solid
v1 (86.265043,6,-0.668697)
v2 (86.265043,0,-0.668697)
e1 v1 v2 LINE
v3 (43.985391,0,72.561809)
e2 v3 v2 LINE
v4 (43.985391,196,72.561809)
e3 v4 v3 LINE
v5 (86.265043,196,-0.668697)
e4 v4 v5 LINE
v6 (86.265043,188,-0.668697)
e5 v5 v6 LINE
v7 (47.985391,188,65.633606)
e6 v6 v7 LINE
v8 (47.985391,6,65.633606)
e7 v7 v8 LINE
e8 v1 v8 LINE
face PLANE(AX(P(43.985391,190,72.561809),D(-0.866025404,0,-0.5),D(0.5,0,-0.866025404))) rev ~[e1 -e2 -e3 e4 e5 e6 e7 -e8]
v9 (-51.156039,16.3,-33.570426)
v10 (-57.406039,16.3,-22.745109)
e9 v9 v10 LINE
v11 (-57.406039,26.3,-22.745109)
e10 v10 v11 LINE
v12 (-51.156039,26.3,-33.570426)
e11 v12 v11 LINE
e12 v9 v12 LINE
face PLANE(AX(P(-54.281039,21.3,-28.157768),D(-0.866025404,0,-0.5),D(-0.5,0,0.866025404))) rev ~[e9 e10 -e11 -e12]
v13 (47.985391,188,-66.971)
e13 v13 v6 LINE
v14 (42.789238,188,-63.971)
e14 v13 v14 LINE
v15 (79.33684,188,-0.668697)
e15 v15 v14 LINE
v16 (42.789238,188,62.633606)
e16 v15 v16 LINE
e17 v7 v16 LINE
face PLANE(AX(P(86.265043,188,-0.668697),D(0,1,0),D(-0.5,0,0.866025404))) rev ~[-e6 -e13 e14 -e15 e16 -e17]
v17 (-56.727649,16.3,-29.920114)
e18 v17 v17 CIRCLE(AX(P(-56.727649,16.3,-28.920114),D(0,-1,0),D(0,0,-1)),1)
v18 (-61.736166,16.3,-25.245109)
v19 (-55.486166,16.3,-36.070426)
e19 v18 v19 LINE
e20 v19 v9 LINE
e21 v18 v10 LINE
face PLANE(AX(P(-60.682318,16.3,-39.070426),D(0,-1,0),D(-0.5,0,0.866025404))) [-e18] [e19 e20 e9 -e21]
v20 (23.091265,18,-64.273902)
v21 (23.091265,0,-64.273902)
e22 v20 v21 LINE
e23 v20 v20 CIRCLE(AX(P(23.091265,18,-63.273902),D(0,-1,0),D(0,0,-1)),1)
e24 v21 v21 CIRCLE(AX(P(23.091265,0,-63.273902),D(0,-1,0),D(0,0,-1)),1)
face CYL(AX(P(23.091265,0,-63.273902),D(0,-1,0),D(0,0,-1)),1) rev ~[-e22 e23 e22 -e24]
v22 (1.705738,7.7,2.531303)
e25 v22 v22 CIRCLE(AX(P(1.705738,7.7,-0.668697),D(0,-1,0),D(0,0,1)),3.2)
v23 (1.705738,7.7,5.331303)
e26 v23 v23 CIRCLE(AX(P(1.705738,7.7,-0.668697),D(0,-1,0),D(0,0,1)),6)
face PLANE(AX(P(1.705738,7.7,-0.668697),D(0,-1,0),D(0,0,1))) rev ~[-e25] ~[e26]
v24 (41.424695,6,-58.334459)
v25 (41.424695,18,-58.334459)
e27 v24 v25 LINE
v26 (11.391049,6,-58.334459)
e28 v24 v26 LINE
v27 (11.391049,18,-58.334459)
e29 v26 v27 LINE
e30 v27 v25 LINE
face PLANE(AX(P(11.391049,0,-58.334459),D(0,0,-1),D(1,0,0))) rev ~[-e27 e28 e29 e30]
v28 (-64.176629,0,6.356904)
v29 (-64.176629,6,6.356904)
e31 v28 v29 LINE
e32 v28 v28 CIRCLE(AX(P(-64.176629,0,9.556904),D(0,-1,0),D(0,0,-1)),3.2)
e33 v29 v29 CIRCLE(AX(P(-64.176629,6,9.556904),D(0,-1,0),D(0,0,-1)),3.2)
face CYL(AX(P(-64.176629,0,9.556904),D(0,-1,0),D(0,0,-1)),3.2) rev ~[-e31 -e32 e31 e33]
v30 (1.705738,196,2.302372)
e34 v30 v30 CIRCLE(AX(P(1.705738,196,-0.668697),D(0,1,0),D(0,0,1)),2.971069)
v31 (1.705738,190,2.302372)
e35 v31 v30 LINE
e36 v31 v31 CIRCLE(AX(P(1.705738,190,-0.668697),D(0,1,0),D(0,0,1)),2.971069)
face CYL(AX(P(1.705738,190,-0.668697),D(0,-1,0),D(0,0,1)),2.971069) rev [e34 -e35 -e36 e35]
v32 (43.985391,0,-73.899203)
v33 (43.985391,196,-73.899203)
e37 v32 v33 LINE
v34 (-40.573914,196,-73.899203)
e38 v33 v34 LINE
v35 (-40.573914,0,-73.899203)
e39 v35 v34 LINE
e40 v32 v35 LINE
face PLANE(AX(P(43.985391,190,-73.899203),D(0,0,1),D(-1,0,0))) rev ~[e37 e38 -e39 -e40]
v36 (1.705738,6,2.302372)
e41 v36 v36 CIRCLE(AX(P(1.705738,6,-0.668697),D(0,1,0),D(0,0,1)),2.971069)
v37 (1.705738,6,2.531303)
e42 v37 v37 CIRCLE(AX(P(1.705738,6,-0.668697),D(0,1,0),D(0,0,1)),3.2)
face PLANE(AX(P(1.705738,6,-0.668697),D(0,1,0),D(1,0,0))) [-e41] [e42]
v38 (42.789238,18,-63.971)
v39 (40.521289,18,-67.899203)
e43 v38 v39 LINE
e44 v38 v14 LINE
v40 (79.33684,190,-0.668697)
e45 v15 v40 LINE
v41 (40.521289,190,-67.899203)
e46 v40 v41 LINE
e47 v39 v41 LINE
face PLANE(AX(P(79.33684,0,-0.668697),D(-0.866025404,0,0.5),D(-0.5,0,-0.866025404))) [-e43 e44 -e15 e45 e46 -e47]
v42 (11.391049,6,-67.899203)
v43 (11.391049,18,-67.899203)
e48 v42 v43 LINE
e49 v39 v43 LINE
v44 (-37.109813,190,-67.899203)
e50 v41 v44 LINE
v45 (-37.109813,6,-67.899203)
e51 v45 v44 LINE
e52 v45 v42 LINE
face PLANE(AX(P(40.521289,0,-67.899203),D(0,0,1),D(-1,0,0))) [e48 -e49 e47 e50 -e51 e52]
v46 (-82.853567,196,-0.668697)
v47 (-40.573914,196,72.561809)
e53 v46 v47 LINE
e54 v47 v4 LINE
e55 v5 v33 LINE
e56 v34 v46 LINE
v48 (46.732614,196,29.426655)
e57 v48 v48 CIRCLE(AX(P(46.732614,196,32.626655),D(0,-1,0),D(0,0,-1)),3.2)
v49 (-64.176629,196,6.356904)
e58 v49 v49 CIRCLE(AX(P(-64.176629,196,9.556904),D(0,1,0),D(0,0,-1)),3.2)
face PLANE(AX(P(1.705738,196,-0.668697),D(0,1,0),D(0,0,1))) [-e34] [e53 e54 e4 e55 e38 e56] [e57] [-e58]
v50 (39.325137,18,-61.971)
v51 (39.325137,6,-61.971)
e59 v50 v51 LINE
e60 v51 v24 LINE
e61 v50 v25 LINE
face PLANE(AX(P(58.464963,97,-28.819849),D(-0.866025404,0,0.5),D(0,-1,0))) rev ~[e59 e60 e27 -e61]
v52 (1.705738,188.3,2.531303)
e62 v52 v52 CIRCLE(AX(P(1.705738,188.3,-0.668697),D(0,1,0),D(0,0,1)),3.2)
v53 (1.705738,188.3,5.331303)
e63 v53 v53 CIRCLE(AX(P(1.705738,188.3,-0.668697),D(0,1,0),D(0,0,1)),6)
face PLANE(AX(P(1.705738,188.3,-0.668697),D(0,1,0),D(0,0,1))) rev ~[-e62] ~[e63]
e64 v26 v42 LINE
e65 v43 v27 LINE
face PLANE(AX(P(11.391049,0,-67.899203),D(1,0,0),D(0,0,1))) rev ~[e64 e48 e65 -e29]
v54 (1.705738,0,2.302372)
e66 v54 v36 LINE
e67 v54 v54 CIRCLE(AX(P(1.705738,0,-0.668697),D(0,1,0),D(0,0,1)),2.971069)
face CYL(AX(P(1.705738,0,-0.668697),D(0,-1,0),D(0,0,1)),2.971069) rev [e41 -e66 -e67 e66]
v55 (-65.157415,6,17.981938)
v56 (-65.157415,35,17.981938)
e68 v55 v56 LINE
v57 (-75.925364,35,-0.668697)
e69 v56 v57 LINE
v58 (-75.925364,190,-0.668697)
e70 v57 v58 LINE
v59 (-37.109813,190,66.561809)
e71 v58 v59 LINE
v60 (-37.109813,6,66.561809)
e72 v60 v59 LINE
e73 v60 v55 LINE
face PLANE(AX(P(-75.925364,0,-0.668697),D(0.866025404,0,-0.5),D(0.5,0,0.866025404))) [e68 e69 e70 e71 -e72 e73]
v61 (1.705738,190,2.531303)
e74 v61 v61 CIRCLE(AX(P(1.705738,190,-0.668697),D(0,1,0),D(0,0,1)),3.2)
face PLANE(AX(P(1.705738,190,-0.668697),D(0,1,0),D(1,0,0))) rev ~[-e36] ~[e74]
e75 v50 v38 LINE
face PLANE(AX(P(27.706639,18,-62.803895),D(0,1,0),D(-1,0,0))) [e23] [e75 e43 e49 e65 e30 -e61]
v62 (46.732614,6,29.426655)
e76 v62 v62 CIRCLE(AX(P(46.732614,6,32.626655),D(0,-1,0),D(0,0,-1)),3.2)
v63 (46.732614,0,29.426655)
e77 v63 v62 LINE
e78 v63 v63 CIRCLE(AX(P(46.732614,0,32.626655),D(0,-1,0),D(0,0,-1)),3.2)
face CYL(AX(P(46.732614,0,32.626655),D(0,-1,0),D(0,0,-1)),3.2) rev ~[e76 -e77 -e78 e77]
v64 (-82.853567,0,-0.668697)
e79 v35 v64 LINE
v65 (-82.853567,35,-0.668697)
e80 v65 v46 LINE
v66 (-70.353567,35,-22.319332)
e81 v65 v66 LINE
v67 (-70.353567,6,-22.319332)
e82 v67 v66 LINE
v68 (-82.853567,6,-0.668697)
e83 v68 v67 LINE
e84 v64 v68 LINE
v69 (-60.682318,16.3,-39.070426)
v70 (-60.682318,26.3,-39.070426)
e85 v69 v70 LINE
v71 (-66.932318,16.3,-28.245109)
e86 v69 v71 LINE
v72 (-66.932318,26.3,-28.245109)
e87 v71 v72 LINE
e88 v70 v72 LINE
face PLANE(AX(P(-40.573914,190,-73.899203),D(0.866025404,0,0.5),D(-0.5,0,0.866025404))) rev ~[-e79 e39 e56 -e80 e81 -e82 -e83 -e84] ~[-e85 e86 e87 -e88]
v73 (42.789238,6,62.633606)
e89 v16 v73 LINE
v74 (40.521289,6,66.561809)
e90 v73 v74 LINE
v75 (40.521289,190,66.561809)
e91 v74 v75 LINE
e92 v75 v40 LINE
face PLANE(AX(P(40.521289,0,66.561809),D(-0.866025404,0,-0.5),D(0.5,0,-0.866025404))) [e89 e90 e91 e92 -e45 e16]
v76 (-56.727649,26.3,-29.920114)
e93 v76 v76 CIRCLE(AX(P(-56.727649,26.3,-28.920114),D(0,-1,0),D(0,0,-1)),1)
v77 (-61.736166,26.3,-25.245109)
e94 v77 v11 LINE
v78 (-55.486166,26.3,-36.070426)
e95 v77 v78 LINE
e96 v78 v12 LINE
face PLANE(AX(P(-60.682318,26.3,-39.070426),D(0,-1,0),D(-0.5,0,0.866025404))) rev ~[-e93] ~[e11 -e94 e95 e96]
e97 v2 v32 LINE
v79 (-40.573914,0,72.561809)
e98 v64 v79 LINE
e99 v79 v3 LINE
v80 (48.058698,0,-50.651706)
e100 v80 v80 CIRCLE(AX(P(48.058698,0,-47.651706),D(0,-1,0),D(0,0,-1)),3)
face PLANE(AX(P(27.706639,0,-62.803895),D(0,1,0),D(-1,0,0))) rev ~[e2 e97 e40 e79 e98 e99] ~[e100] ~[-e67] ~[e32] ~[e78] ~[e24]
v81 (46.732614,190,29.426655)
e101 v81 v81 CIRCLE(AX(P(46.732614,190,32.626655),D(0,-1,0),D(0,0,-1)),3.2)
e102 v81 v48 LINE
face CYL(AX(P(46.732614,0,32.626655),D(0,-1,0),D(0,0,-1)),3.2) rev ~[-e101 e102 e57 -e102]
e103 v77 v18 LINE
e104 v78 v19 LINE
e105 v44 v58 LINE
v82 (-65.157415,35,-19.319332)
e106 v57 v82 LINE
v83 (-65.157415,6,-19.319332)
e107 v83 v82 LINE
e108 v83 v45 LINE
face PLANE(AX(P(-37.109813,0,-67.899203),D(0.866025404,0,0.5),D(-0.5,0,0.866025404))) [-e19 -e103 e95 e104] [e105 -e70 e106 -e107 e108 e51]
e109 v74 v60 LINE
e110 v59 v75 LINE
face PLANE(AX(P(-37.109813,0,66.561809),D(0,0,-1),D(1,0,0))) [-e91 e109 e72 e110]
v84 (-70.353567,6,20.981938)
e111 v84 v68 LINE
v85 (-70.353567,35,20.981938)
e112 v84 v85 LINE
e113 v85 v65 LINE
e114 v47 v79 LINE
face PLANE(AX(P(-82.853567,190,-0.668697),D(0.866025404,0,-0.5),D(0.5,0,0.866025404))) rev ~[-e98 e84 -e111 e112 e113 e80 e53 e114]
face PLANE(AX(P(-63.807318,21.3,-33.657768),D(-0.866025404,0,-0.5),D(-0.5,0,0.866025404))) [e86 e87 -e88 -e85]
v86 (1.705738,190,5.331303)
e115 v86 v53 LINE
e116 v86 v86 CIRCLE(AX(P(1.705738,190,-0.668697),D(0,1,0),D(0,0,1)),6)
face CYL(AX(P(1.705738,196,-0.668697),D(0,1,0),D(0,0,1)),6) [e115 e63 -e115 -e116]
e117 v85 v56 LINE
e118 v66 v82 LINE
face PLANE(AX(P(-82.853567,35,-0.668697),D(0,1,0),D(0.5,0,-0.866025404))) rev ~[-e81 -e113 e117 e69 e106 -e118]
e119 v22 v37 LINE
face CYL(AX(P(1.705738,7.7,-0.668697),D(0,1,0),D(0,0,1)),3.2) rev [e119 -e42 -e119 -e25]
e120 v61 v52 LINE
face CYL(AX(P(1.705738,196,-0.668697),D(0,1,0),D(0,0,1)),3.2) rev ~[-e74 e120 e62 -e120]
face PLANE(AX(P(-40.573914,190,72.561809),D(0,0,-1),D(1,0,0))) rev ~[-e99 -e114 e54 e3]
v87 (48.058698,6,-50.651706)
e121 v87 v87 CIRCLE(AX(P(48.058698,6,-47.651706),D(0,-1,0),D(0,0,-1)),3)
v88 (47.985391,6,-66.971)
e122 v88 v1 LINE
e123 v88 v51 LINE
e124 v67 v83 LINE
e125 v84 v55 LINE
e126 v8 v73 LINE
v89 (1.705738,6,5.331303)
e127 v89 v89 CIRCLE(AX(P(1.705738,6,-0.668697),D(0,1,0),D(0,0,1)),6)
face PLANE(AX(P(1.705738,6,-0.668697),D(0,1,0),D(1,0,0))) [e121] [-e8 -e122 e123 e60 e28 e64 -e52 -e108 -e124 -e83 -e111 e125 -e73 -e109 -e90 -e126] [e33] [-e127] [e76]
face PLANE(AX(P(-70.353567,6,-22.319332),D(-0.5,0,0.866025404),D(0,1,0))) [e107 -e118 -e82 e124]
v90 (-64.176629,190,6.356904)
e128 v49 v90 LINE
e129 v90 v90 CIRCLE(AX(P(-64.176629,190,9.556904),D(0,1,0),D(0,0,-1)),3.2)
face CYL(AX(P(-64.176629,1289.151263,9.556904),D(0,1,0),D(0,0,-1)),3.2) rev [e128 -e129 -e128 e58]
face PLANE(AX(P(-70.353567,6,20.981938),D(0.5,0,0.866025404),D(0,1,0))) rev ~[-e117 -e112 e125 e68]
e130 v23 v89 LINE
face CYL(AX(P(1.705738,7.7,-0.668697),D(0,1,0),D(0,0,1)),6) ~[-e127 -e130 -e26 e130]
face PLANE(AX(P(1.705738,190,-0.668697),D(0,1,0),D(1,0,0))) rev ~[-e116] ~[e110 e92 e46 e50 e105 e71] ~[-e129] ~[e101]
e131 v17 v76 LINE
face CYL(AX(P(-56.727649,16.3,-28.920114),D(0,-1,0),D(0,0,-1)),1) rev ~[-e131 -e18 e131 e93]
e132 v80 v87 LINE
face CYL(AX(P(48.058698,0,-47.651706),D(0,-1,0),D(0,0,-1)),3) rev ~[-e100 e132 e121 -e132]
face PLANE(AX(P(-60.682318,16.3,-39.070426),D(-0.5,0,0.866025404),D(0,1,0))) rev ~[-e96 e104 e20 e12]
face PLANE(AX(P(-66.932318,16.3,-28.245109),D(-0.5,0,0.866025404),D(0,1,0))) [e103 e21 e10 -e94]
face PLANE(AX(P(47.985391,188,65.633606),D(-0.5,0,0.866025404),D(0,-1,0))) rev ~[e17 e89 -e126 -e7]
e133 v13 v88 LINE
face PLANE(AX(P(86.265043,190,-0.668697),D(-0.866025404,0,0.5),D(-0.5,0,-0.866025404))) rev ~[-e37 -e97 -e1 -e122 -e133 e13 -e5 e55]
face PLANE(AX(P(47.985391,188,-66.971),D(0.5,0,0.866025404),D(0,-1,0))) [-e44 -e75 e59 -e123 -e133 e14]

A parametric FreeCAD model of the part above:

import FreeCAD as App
import Part
import Sketcher

V = App.Vector
Q = App.Units.Quantity

doc = App.newDocument("Part")
body = doc.addObject("PartDesign::Body", "Body")

sketch1 = body.newObject("Sketcher::SketchObject", "Sketch")
sketch1.AttachmentSupport = (doc.getObject("XZ_Plane"), [""])
sketch1.MapMode = "FlatFace"
sketch1.addGeometry([
    Part.LineSegment(V(-40.6, -73.9, 0), V(-82.9, -0.7, 0)),
    Part.LineSegment(V(-82.9, -0.7, 0), V(-40.6, 72.6, 0)),
    Part.LineSegment(V(-40.6, 72.6, 0), V(44, 72.6, 0)),
    Part.LineSegment(V(44, 72.6, 0), V(86.3, -0.7, 0)),
    Part.LineSegment(V(86.3, -0.7, 0), V(44, -73.9, 0)),
    Part.LineSegment(V(44, -73.9, 0), V(-40.6, -73.9, 0)),
    Part.Circle(V(1.7, -0.7, 0), V(0, 0, 1), 3),
], False)
sketch1.addConstraint([
    Sketcher.Constraint("Coincident", 0, 2, 1, 1),
    Sketcher.Constraint("Coincident", 1, 2, 2, 1),
    Sketcher.Constraint("Coincident", 2, 2, 3, 1),
    Sketcher.Constraint("Coincident", 3, 2, 4, 1),
    Sketcher.Constraint("Coincident", 4, 2, 5, 1),
    Sketcher.Constraint("Coincident", 5, 2, 0, 1),
    Sketcher.Constraint("Horizontal", 2),
    Sketcher.Constraint("Horizontal", 5),
    Sketcher.Constraint("Parallel", 0, 3),
    Sketcher.Constraint("Parallel", 1, 4),
    Sketcher.Constraint("Horizontal", 6, 3, 0, 2),
    Sketcher.Constraint("Horizontal", 0, 2, 3, 2),
    Sketcher.Constraint("Vertical", 2, 2, 4, 2),
    Sketcher.Constraint("Vertical", 1, 2, 5, 2),
    Sketcher.Constraint("Angle", 0, Q("120 deg")),
    Sketcher.Constraint("Diameter", 6, 5.942137),
    Sketcher.Constraint("DistanceX", 2, 1, 2, 2, 84.559305),
    Sketcher.Constraint("DistanceX", -1, 1, 6, 3, 1.705738),
    Sketcher.Constraint("DistanceY", -1, 1, 1, 2, 72.561809),
    Sketcher.Constraint("DistanceX", -1, 1, 2, 2, 43.985391),
    Sketcher.Constraint("DistanceX", 0, 2, 3, 2, 169.11861),
])
pad1 = body.newObject("PartDesign::Pad", "Pad")
pad1.Profile = sketch1
pad1.Length = 6
pad1.Reversed = True

sketch2 = body.newObject("Sketcher::SketchObject", "Sketch001")
sketch2.AttachmentSupport = (doc.getObject("XZ_Plane"), [""])
sketch2.MapMode = "FlatFace"
sketch2.addGeometry([
    Part.LineSegment(V(86, -1, 0), V(44, -74, 0)),
    Part.LineSegment(V(44, -74, 0), V(-41, -74, 0)),
    Part.LineSegment(V(-41, -74, 0), V(-83, -1, 0)),
    Part.LineSegment(V(-83, -1, 0), V(-41, 73, 0)),
    Part.LineSegment(V(-41, 73, 0), V(44, 73, 0)),
    Part.LineSegment(V(44, 73, 0), V(86, -1, 0)),
    Part.LineSegment(V(-76, -1, 0), V(-37, -68, 0)),
    Part.LineSegment(V(-37, -68, 0), V(41, -68, 0)),
    Part.LineSegment(V(41, -68, 0), V(79, -1, 0)),
    Part.LineSegment(V(79, -1, 0), V(41, 67, 0)),
    Part.LineSegment(V(41, 67, 0), V(-37, 67, 0)),
    Part.LineSegment(V(-37, 67, 0), V(-76, -1, 0)),
], False)
sketch2.addConstraint([
    Sketcher.Constraint("Coincident", 0, 2, 1, 1),
    Sketcher.Constraint("Coincident", 1, 2, 2, 1),
    Sketcher.Constraint("Coincident", 2, 2, 3, 1),
    Sketcher.Constraint("Coincident", 3, 2, 4, 1),
    Sketcher.Constraint("Coincident", 4, 2, 5, 1),
    Sketcher.Constraint("Coincident", 5, 2, 0, 1),
    Sketcher.Constraint("Coincident", 6, 2, 7, 1),
    Sketcher.Constraint("Coincident", 7, 2, 8, 1),
    Sketcher.Constraint("Coincident", 8, 2, 9, 1),
    Sketcher.Constraint("Coincident", 9, 2, 10, 1),
    Sketcher.Constraint("Coincident", 10, 2, 11, 1),
    Sketcher.Constraint("Coincident", 11, 2, 6, 1),
    Sketcher.Constraint("Horizontal", 1),
    Sketcher.Constraint("Horizontal", 4),
    Sketcher.Constraint("Horizontal", 7),
    Sketcher.Constraint("Horizontal", 10),
    Sketcher.Constraint("Parallel", 0, 3),
    Sketcher.Constraint("Parallel", 2, 5),
    Sketcher.Constraint("Parallel", 5, 6),
    Sketcher.Constraint("Parallel", 3, 8),
    Sketcher.Constraint("Parallel", 6, 9),
    Sketcher.Constraint("Parallel", 8, 11),
    Sketcher.Constraint("Horizontal", 2, 2, 5, 2),
    Sketcher.Constraint("Horizontal", 5, 2, 8, 2),
    Sketcher.Constraint("Horizontal", 8, 2, 11, 2),
    Sketcher.Constraint("Vertical", 1, 2, 3, 2),
    Sketcher.Constraint("Vertical", 0, 2, 4, 2),
    Sketcher.Constraint("Vertical", 7, 2, 9, 2),
    Sketcher.Constraint("Angle", 0, Q("-120 deg")),
    Sketcher.Constraint("DistanceY", 1, 2, 6, 2, 6.0),
    Sketcher.Constraint("DistanceX", 7, 1, 7, 2, 77.631102),
    Sketcher.Constraint("Distance", 6, 77.631102),
    Sketcher.Constraint("DistanceX", 1, 2, 6, 2, 3.464102),
    Sketcher.Constraint("DistanceX", 7, 2, 0, 2, 3.464102),
    Sketcher.Constraint("DistanceX", -1, 1, 0, 2, 43.985391),
    Sketcher.Constraint("DistanceY", -1, 1, 3, 2, 72.561809),
])
pad2 = body.newObject("PartDesign::Pad", "Pad001")
pad2.Profile = sketch2
pad2.Length = 190
pad2.Reversed = True

sketch3 = body.newObject("Sketcher::SketchObject", "Sketch002")
sketch3.AttachmentSupport = (doc.getObject("XZ_Plane"), [""])
sketch3.MapMode = "FlatFace"
sketch3.AttachmentOffset = App.Placement(V(0, 0, -190), App.Rotation())
sketch3.addGeometry([
    Part.LineSegment(V(86.3, -0.7, 0), V(44, -73.9, 0)),
    Part.LineSegment(V(44, -73.9, 0), V(-40.6, -73.9, 0)),
    Part.LineSegment(V(-40.6, -73.9, 0), V(-82.9, -0.7, 0)),
    Part.LineSegment(V(-82.9, -0.7, 0), V(-40.6, 72.6, 0)),
    Part.LineSegment(V(-40.6, 72.6, 0), V(44, 72.6, 0)),
    Part.LineSegment(V(44, 72.6, 0), V(86.3, -0.7, 0)),
    Part.Circle(V(1.7, -0.7, 0), V(0, 0, 1), 3),
], False)
sketch3.addConstraint([
    Sketcher.Constraint("Coincident", 0, 2, 1, 1),
    Sketcher.Constraint("Coincident", 1, 2, 2, 1),
    Sketcher.Constraint("Coincident", 2, 2, 3, 1),
    Sketcher.Constraint("Coincident", 3, 2, 4, 1),
    Sketcher.Constraint("Coincident", 4, 2, 5, 1),
    Sketcher.Constraint("Coincident", 5, 2, 0, 1),
    Sketcher.Constraint("Horizontal", 1),
    Sketcher.Constraint("Horizontal", 4),
    Sketcher.Constraint("Parallel", 0, 3),
    Sketcher.Constraint("Parallel", 2, 5),
    Sketcher.Constraint("Horizontal", 6, 3, 2, 2),
    Sketcher.Constraint("Horizontal", 2, 2, 5, 2),
    Sketcher.Constraint("Vertical", 1, 2, 3, 2),
    Sketcher.Constraint("Vertical", 0, 2, 4, 2),
    Sketcher.Constraint("Angle", 0, Q("-120 deg")),
    Sketcher.Constraint("Diameter", 6, 5.942137),
    Sketcher.Constraint("DistanceX", 1, 2, 1, 1, 84.559305),
    Sketcher.Constraint("DistanceX", -1, 1, 6, 3, 1.705738),
    Sketcher.Constraint("DistanceX", -1, 1, 0, 2, 43.985391),
    Sketcher.Constraint("DistanceY", -1, 1, 3, 2, 72.561809),
    Sketcher.Constraint("Distance", 0, 84.559305),
])
pad3 = body.newObject("PartDesign::Pad", "Pad002")
pad3.Profile = sketch3
pad3.Length = 6
pad3.Reversed = True

sketch4 = body.newObject("Sketcher::SketchObject", "Sketch003")
sketch4.Placement = App.Placement(V(-62.42973, 0, -36.043821), App.Rotation(V(-0.5, 0, 0.866025404), V(0, 1, 0), V(-0.866025404, 0, -0.5), "ZXY"))
sketch4.addGeometry([
    Part.LineSegment(V(-3, 26, 0), V(-3, 16, 0)),
    Part.LineSegment(V(-3, 16, 0), V(9, 16, 0)),
    Part.LineSegment(V(9, 16, 0), V(9, 26, 0)),
    Part.LineSegment(V(9, 26, 0), V(-3, 26, 0)),
], False)
sketch4.addConstraint([
    Sketcher.Constraint("Coincident", 0, 2, 1, 1),
    Sketcher.Constraint("Coincident", 1, 2, 2, 1),
    Sketcher.Constraint("Coincident", 2, 2, 3, 1),
    Sketcher.Constraint("Coincident", 3, 2, 0, 1),
    Sketcher.Constraint("Vertical", 0),
    Sketcher.Constraint("Horizontal", 1),
    Sketcher.Constraint("Vertical", 2),
    Sketcher.Constraint("Horizontal", 3),
    Sketcher.Constraint("DistanceY", 0, 2, 0, 1, 10.0),
    Sketcher.Constraint("DistanceX", 1, 1, 1, 2, 12.5),
    Sketcher.Constraint("DistanceY", -1, 1, 0, 2, 16.3),
    Sketcher.Constraint("DistanceX", 0, 2, -1, 1, 3.494823),
])
pad4 = body.newObject("PartDesign::Pad", "Pad003")
pad4.Profile = sketch4
pad4.Length = 11
pad4.Reversed = True

sketch5 = body.newObject("Sketcher::SketchObject", "Sketch004")
sketch5.AttachmentSupport = (doc.getObject("XZ_Plane"), [""])
sketch5.MapMode = "FlatFace"
sketch5.addGeometry([
    Part.LineSegment(V(11.4, -67.9, 0), V(40.5, -67.9, 0)),
    Part.LineSegment(V(40.5, -67.9, 0), V(46, -58.3, 0)),
    Part.LineSegment(V(46, -58.3, 0), V(11.4, -58.3, 0)),
    Part.LineSegment(V(11.4, -58.3, 0), V(11.4, -67.9, 0)),
    Part.Circle(V(23.1, -63.3, 0), V(0, 0, 1), 1),
], False)
sketch5.addConstraint([
    Sketcher.Constraint("Coincident", 0, 2, 1, 1),
    Sketcher.Constraint("Coincident", 1, 2, 2, 1),
    Sketcher.Constraint("Coincident", 2, 2, 3, 1),
    Sketcher.Constraint("Coincident", 3, 2, 0, 1),
    Sketcher.Constraint("Horizontal", 0),
    Sketcher.Constraint("Horizontal", 2),
    Sketcher.Constraint("Vertical", 3),
    Sketcher.Constraint("Diameter", 4, 2.0),
    Sketcher.Constraint("Angle", 1, Q("60 deg")),
    Sketcher.Constraint("DistanceX", 0, 1, 0, 2, 29.13024),
    Sketcher.Constraint("DistanceX", 2, 2, 2, 1, 34.652448),
    Sketcher.Constraint("DistanceY", 4, 3, -1, 1, 63.273902),
    Sketcher.Constraint("DistanceY", 0, 2, 4, 3, 4.625302),
    Sketcher.Constraint("DistanceX", -1, 1, 0, 2, 40.521289),
    Sketcher.Constraint("DistanceX", -1, 1, 4, 3, 23.091265),
])
pad5 = body.newObject("PartDesign::Pad", "Pad004")
pad5.Profile = sketch5
pad5.Length = 18
pad5.Reversed = True

sketch6 = body.newObject("Sketcher::SketchObject", "Sketch005")
sketch6.AttachmentSupport = (doc.getObject("XZ_Plane"), [""])
sketch6.MapMode = "FlatFace"
sketch6.addGeometry(Part.Circle(V(23.1, -63.3, 0), V(0, 0, 1), 1), False)
sketch6.addConstraint([
    Sketcher.Constraint("Diameter", 0, 2.0),
    Sketcher.Constraint("DistanceY", 0, 3, -1, 1, 63.273902),
    Sketcher.Constraint("DistanceX", -1, 1, 0, 3, 23.091265),
])
pocket1 = body.newObject("PartDesign::Pocket", "Pocket")
pocket1.Profile = sketch6
pocket1.Length = 18

sketch7 = body.newObject("Sketcher::SketchObject", "Sketch006")
sketch7.AttachmentSupport = (doc.getObject("XZ_Plane"), [""])
sketch7.MapMode = "FlatFace"
sketch7.AttachmentOffset = App.Placement(V(0, 0, -196), App.Rotation())
sketch7.addGeometry([
    Part.Circle(V(1.7, -0.7, 0), V(0, 0, 1), 6),
    Part.Circle(V(1.7, -0.7, 0), V(0, 0, 1), 3.2),
], False)
sketch7.addConstraint([
    Sketcher.Constraint("Coincident", 1, 3, 0, 3),
    Sketcher.Constraint("Diameter", 0, 12.0),
    Sketcher.Constraint("Diameter", 1, 6.4),
    Sketcher.Constraint("DistanceX", -1, 1, 0, 3, 1.705738),
    Sketcher.Constraint("DistanceY", 0, 3, -1, 1, 0.668697),
])
pad6 = body.newObject("PartDesign::Pad", "Pad005")
pad6.Profile = sketch7
pad6.Length = 7.7

sketch8 = body.newObject("Sketcher::SketchObject", "Sketch007")
sketch8.AttachmentSupport = (doc.getObject("XZ_Plane"), [""])
sketch8.MapMode = "FlatFace"
sketch8.AttachmentOffset = App.Placement(V(0, 0, -7.7), App.Rotation())
sketch8.addGeometry([
    Part.Circle(V(1.7, -0.7, 0), V(0, 0, 1), 6),
    Part.Circle(V(1.7, -0.7, 0), V(0, 0, 1), 3.2),
], False)
sketch8.addConstraint([
    Sketcher.Constraint("Coincident", 1, 3, 0, 3),
    Sketcher.Constraint("Diameter", 0, 12.0),
    Sketcher.Constraint("Diameter", 1, 6.4),
    Sketcher.Constraint("DistanceX", -1, 1, 0, 3, 1.705738),
    Sketcher.Constraint("DistanceY", 0, 3, -1, 1, 0.668697),
])
pad7 = body.newObject("PartDesign::Pad", "Pad006")
pad7.Profile = sketch8
pad7.Length = 7.7

sketch9 = body.newObject("Sketcher::SketchObject", "Sketch008")
sketch9.Placement = App.Placement(V(629.826957, 1366.496608, -942.145549), App.Rotation(V(0, -1, 0), V(-0.5, 0, 0.866025404), V(-0.866025404, 0, -0.5), "ZXY"))
sketch9.addGeometry([
    Part.LineSegment(V(1178, 1164, 0), V(1178, 1087, 0)),
    Part.LineSegment(V(1178, 1087, 0), V(1360, 1087, 0)),
    Part.LineSegment(V(1360, 1087, 0), V(1360, 1164, 0)),
    Part.LineSegment(V(1360, 1164, 0), V(1178, 1164, 0)),
], False)
sketch9.addConstraint([
    Sketcher.Constraint("Coincident", 0, 2, 1, 1),
    Sketcher.Constraint("Coincident", 1, 2, 2, 1),
    Sketcher.Constraint("Coincident", 2, 2, 3, 1),
    Sketcher.Constraint("Coincident", 3, 2, 0, 1),
    Sketcher.Constraint("Vertical", 0),
    Sketcher.Constraint("Horizontal", 1),
    Sketcher.Constraint("Vertical", 2),
    Sketcher.Constraint("Horizontal", 3),
    Sketcher.Constraint("DistanceX", 1, 1, 1, 2, 182.0),
    Sketcher.Constraint("DistanceY", 0, 2, 0, 1, 76.559305),
    Sketcher.Constraint("DistanceX", -1, 1, 0, 2, 1178.496608),
    Sketcher.Constraint("DistanceY", -1, 1, 0, 2, 1087.123828),
])
pocket2 = body.newObject("PartDesign::Pocket", "Pocket001")
pocket2.Profile = sketch9
pocket2.Length = 6
pocket2.Reversed = True

sketch10 = body.newObject("Sketcher::SketchObject", "Sketch009")
sketch10.Placement = App.Placement(V(508.184152, 1366.496608, 1023.038661), App.Rotation(V(0, 1, 0), V(-0.5, 0, -0.866025404), V(-0.866025404, 0, 0.5), "ZXY"))
sketch10.addGeometry([
    Part.LineSegment(V(-1360, 1182, 0), V(-1360, 1157, 0)),
    Part.LineSegment(V(-1360, 1157, 0), V(-1331, 1157, 0)),
    Part.LineSegment(V(-1331, 1157, 0), V(-1331, 1182, 0)),
    Part.LineSegment(V(-1331, 1182, 0), V(-1360, 1182, 0)),
], False)
sketch10.addConstraint([
    Sketcher.Constraint("Coincident", 0, 2, 1, 1),
    Sketcher.Constraint("Coincident", 1, 2, 2, 1),
    Sketcher.Constraint("Coincident", 2, 2, 3, 1),
    Sketcher.Constraint("Coincident", 3, 2, 0, 1),
    Sketcher.Constraint("Vertical", 0),
    Sketcher.Constraint("Horizontal", 1),
    Sketcher.Constraint("Vertical", 2),
    Sketcher.Constraint("Horizontal", 3),
    Sketcher.Constraint("DistanceX", 1, 1, 1, 2, 29.0),
    Sketcher.Constraint("DistanceY", 0, 2, 0, 1, 25.0),
    Sketcher.Constraint("DistanceX", 0, 2, -1, 1, 1360.496608),
    Sketcher.Constraint("DistanceY", -1, 1, 0, 2, 1157.075438),
])
pocket3 = body.newObject("PartDesign::Pocket", "Pocket002")
pocket3.Profile = sketch10
pocket3.Length = 6

sketch11 = body.newObject("Sketcher::SketchObject", "Sketch010")
sketch11.Placement = App.Placement(V(-287.090469, 1366.496608, 353.079994), App.Rotation(V(0, 1, 0), V(0.5, 0, -0.866025404), V(-0.866025404, 0, -0.5), "ZXY"))
sketch11.addGeometry([
    Part.LineSegment(V(-1360, 433, 0), V(-1360, 408, 0)),
    Part.LineSegment(V(-1360, 408, 0), V(-1331, 408, 0)),
    Part.LineSegment(V(-1331, 408, 0), V(-1331, 433, 0)),
    Part.LineSegment(V(-1331, 433, 0), V(-1360, 433, 0)),
], False)
sketch11.addConstraint([
    Sketcher.Constraint("Coincident", 0, 2, 1, 1),
    Sketcher.Constraint("Coincident", 1, 2, 2, 1),
    Sketcher.Constraint("Coincident", 2, 2, 3, 1),
    Sketcher.Constraint("Coincident", 3, 2, 0, 1),
    Sketcher.Constraint("Vertical", 0),
    Sketcher.Constraint("Horizontal", 1),
    Sketcher.Constraint("Vertical", 2),
    Sketcher.Constraint("Horizontal", 3),
    Sketcher.Constraint("DistanceX", 1, 1, 1, 2, 29.0),
    Sketcher.Constraint("DistanceY", 0, 2, 0, 1, 25.0),
    Sketcher.Constraint("DistanceX", 0, 2, -1, 1, 1360.496608),
    Sketcher.Constraint("DistanceY", -1, 1, 0, 2, 408.473804),
])
pocket4 = body.newObject("PartDesign::Pocket", "Pocket003")
pocket4.Profile = sketch11
pocket4.Length = 6

sketch12 = body.newObject("Sketcher::SketchObject", "Sketch011")
sketch12.AttachmentSupport = (doc.getObject("XZ_Plane"), [""])
sketch12.MapMode = "FlatFace"
sketch12.addGeometry([
    Part.Circle(V(-64.2, 9.6, 0), V(0, 0, 1), 3.2),
    Part.Circle(V(46.7, 32.6, 0), V(0, 0, 1), 3.2),
    Part.Circle(V(48.1, -47.7, 0), V(0, 0, 1), 3),
], False)
sketch12.addConstraint([
    Sketcher.Constraint("Equal", 0, 1),
    Sketcher.Constraint("Diameter", 2, 6.0),
    Sketcher.Constraint("Diameter", 0, 6.4),
    Sketcher.Constraint("DistanceX", -1, 1, 2, 3, 48.058698),
    Sketcher.Constraint("DistanceX", 0, 3, -1, 1, 64.176629),
    Sketcher.Constraint("DistanceY", 0, 3, 1, 3, 23.06975),
    Sketcher.Constraint("DistanceY", 2, 3, 1, 3, 80.27836),
    Sketcher.Constraint("DistanceY", -1, 1, 0, 3, 9.556904),
    Sketcher.Constraint("DistanceX", -1, 1, 1, 3, 46.732614),
])
pocket5 = body.newObject("PartDesign::Pocket", "Pocket004")
pocket5.Profile = sketch12
pocket5.Length = 6

sketch13 = body.newObject("Sketcher::SketchObject", "Sketch012")
sketch13.AttachmentSupport = (doc.getObject("XZ_Plane"), [""])
sketch13.MapMode = "FlatFace"
sketch13.addGeometry(Part.Circle(V(46.7, 32.6, 0), V(0, 0, 1), 3.2), False)
sketch13.addConstraint([
    Sketcher.Constraint("Diameter", 0, 6.4),
    Sketcher.Constraint("DistanceX", -1, 1, 0, 3, 46.732614),
    Sketcher.Constraint("DistanceY", -1, 1, 0, 3, 32.626655),
])
pocket6 = body.newObject("PartDesign::Pocket", "Pocket005")
pocket6.Profile = sketch13
pocket6.Type = "ThroughAll"

sketch14 = body.newObject("Sketcher::SketchObject", "Sketch013")
sketch14.AttachmentSupport = (doc.getObject("XZ_Plane"), [""])
sketch14.MapMode = "FlatFace"
sketch14.AttachmentOffset = App.Placement(V(0, 0, -16.3), App.Rotation())
sketch14.addGeometry(Part.Circle(V(-56.7, -28.9, 0), V(0, 0, 1), 1), False)
sketch14.addConstraint([
    Sketcher.Constraint("Diameter", 0, 2.0),
    Sketcher.Constraint("DistanceX", 0, 3, -1, 1, 56.727649),
    Sketcher.Constraint("DistanceY", 0, 3, -1, 1, 28.920114),
])
pocket7 = body.newObject("PartDesign::Pocket", "Pocket006")
pocket7.Profile = sketch14
pocket7.Length = 11

sketch15 = body.newObject("Sketcher::SketchObject", "Sketch014")
sketch15.AttachmentSupport = (doc.getObject("XZ_Plane"), [""])
sketch15.MapMode = "FlatFace"
sketch15.AttachmentOffset = App.Placement(V(0, 0, -198), App.Rotation())
sketch15.addGeometry(Part.Circle(V(-64.2, 9.6, 0), V(0, 0, 1), 3), False)
sketch15.addConstraint([
    Sketcher.Constraint("Diameter", 0, 6.0),
    Sketcher.Constraint("DistanceX", 0, 3, -1, 1, 64.176629),
    Sketcher.Constraint("DistanceY", -1, 1, 0, 3, 9.556904),
])
pocket8 = body.newObject("PartDesign::Pocket", "Pocket007")
pocket8.Profile = sketch15
pocket8.Length = 170
pocket8.Reversed = True

sketch16 = body.newObject("Sketcher::SketchObject", "Sketch015")
sketch16.AttachmentSupport = (doc.getObject("XZ_Plane"), [""])
sketch16.MapMode = "FlatFace"
sketch16.AttachmentOffset = App.Placement(V(0, 0, -18), App.Rotation())
sketch16.addGeometry(Part.Circle(V(-64.2, 9.6, 0), V(0, 0, 1), 3.2), False)
sketch16.addConstraint([
    Sketcher.Constraint("Diameter", 0, 6.4),
    Sketcher.Constraint("DistanceX", 0, 3, -1, 1, 64.176629),
    Sketcher.Constraint("DistanceY", -1, 1, 0, 3, 9.556904),
])
pocket9 = body.newObject("PartDesign::Pocket", "Pocket008")
pocket9.Profile = sketch16
pocket9.Type = "ThroughAll"
pocket9.Midplane = True

sketch17 = body.newObject("Sketcher::SketchObject", "Sketch016")
sketch17.Placement = App.Placement(V(-165.447664, 1366.496608, -436.647894), App.Rotation(V(0, -1, 0), V(0.5, 0, 0.866025404), V(-0.866025404, 0, 0.5), "ZXY"))
sketch17.addGeometry([
    Part.LineSegment(V(1178, 503, 0), V(1178, 427, 0)),
    Part.LineSegment(V(1178, 427, 0), V(1360, 427, 0)),
    Part.LineSegment(V(1360, 427, 0), V(1360, 503, 0)),
    Part.LineSegment(V(1360, 503, 0), V(1178, 503, 0)),
], False)
sketch17.addConstraint([
    Sketcher.Constraint("Coincident", 0, 2, 1, 1),
    Sketcher.Constraint("Coincident", 1, 2, 2, 1),
    Sketcher.Constraint("Coincident", 2, 2, 3, 1),
    Sketcher.Constraint("Coincident", 3, 2, 0, 1),
    Sketcher.Constraint("Vertical", 0),
    Sketcher.Constraint("Horizontal", 1),
    Sketcher.Constraint("Vertical", 2),
    Sketcher.Constraint("Horizontal", 3),
    Sketcher.Constraint("DistanceX", 1, 1, 1, 2, 182.0),
    Sketcher.Constraint("DistanceY", 0, 2, 0, 1, 76.559305),
    Sketcher.Constraint("DistanceX", -1, 1, 0, 2, 1178.496608),
    Sketcher.Constraint("DistanceY", -1, 1, 0, 2, 426.866109),
])
pocket10 = body.newObject("PartDesign::Pocket", "Pocket009")
pocket10.Profile = sketch17
pocket10.Length = 10
pocket10.Reversed = True

doc.recompute()
